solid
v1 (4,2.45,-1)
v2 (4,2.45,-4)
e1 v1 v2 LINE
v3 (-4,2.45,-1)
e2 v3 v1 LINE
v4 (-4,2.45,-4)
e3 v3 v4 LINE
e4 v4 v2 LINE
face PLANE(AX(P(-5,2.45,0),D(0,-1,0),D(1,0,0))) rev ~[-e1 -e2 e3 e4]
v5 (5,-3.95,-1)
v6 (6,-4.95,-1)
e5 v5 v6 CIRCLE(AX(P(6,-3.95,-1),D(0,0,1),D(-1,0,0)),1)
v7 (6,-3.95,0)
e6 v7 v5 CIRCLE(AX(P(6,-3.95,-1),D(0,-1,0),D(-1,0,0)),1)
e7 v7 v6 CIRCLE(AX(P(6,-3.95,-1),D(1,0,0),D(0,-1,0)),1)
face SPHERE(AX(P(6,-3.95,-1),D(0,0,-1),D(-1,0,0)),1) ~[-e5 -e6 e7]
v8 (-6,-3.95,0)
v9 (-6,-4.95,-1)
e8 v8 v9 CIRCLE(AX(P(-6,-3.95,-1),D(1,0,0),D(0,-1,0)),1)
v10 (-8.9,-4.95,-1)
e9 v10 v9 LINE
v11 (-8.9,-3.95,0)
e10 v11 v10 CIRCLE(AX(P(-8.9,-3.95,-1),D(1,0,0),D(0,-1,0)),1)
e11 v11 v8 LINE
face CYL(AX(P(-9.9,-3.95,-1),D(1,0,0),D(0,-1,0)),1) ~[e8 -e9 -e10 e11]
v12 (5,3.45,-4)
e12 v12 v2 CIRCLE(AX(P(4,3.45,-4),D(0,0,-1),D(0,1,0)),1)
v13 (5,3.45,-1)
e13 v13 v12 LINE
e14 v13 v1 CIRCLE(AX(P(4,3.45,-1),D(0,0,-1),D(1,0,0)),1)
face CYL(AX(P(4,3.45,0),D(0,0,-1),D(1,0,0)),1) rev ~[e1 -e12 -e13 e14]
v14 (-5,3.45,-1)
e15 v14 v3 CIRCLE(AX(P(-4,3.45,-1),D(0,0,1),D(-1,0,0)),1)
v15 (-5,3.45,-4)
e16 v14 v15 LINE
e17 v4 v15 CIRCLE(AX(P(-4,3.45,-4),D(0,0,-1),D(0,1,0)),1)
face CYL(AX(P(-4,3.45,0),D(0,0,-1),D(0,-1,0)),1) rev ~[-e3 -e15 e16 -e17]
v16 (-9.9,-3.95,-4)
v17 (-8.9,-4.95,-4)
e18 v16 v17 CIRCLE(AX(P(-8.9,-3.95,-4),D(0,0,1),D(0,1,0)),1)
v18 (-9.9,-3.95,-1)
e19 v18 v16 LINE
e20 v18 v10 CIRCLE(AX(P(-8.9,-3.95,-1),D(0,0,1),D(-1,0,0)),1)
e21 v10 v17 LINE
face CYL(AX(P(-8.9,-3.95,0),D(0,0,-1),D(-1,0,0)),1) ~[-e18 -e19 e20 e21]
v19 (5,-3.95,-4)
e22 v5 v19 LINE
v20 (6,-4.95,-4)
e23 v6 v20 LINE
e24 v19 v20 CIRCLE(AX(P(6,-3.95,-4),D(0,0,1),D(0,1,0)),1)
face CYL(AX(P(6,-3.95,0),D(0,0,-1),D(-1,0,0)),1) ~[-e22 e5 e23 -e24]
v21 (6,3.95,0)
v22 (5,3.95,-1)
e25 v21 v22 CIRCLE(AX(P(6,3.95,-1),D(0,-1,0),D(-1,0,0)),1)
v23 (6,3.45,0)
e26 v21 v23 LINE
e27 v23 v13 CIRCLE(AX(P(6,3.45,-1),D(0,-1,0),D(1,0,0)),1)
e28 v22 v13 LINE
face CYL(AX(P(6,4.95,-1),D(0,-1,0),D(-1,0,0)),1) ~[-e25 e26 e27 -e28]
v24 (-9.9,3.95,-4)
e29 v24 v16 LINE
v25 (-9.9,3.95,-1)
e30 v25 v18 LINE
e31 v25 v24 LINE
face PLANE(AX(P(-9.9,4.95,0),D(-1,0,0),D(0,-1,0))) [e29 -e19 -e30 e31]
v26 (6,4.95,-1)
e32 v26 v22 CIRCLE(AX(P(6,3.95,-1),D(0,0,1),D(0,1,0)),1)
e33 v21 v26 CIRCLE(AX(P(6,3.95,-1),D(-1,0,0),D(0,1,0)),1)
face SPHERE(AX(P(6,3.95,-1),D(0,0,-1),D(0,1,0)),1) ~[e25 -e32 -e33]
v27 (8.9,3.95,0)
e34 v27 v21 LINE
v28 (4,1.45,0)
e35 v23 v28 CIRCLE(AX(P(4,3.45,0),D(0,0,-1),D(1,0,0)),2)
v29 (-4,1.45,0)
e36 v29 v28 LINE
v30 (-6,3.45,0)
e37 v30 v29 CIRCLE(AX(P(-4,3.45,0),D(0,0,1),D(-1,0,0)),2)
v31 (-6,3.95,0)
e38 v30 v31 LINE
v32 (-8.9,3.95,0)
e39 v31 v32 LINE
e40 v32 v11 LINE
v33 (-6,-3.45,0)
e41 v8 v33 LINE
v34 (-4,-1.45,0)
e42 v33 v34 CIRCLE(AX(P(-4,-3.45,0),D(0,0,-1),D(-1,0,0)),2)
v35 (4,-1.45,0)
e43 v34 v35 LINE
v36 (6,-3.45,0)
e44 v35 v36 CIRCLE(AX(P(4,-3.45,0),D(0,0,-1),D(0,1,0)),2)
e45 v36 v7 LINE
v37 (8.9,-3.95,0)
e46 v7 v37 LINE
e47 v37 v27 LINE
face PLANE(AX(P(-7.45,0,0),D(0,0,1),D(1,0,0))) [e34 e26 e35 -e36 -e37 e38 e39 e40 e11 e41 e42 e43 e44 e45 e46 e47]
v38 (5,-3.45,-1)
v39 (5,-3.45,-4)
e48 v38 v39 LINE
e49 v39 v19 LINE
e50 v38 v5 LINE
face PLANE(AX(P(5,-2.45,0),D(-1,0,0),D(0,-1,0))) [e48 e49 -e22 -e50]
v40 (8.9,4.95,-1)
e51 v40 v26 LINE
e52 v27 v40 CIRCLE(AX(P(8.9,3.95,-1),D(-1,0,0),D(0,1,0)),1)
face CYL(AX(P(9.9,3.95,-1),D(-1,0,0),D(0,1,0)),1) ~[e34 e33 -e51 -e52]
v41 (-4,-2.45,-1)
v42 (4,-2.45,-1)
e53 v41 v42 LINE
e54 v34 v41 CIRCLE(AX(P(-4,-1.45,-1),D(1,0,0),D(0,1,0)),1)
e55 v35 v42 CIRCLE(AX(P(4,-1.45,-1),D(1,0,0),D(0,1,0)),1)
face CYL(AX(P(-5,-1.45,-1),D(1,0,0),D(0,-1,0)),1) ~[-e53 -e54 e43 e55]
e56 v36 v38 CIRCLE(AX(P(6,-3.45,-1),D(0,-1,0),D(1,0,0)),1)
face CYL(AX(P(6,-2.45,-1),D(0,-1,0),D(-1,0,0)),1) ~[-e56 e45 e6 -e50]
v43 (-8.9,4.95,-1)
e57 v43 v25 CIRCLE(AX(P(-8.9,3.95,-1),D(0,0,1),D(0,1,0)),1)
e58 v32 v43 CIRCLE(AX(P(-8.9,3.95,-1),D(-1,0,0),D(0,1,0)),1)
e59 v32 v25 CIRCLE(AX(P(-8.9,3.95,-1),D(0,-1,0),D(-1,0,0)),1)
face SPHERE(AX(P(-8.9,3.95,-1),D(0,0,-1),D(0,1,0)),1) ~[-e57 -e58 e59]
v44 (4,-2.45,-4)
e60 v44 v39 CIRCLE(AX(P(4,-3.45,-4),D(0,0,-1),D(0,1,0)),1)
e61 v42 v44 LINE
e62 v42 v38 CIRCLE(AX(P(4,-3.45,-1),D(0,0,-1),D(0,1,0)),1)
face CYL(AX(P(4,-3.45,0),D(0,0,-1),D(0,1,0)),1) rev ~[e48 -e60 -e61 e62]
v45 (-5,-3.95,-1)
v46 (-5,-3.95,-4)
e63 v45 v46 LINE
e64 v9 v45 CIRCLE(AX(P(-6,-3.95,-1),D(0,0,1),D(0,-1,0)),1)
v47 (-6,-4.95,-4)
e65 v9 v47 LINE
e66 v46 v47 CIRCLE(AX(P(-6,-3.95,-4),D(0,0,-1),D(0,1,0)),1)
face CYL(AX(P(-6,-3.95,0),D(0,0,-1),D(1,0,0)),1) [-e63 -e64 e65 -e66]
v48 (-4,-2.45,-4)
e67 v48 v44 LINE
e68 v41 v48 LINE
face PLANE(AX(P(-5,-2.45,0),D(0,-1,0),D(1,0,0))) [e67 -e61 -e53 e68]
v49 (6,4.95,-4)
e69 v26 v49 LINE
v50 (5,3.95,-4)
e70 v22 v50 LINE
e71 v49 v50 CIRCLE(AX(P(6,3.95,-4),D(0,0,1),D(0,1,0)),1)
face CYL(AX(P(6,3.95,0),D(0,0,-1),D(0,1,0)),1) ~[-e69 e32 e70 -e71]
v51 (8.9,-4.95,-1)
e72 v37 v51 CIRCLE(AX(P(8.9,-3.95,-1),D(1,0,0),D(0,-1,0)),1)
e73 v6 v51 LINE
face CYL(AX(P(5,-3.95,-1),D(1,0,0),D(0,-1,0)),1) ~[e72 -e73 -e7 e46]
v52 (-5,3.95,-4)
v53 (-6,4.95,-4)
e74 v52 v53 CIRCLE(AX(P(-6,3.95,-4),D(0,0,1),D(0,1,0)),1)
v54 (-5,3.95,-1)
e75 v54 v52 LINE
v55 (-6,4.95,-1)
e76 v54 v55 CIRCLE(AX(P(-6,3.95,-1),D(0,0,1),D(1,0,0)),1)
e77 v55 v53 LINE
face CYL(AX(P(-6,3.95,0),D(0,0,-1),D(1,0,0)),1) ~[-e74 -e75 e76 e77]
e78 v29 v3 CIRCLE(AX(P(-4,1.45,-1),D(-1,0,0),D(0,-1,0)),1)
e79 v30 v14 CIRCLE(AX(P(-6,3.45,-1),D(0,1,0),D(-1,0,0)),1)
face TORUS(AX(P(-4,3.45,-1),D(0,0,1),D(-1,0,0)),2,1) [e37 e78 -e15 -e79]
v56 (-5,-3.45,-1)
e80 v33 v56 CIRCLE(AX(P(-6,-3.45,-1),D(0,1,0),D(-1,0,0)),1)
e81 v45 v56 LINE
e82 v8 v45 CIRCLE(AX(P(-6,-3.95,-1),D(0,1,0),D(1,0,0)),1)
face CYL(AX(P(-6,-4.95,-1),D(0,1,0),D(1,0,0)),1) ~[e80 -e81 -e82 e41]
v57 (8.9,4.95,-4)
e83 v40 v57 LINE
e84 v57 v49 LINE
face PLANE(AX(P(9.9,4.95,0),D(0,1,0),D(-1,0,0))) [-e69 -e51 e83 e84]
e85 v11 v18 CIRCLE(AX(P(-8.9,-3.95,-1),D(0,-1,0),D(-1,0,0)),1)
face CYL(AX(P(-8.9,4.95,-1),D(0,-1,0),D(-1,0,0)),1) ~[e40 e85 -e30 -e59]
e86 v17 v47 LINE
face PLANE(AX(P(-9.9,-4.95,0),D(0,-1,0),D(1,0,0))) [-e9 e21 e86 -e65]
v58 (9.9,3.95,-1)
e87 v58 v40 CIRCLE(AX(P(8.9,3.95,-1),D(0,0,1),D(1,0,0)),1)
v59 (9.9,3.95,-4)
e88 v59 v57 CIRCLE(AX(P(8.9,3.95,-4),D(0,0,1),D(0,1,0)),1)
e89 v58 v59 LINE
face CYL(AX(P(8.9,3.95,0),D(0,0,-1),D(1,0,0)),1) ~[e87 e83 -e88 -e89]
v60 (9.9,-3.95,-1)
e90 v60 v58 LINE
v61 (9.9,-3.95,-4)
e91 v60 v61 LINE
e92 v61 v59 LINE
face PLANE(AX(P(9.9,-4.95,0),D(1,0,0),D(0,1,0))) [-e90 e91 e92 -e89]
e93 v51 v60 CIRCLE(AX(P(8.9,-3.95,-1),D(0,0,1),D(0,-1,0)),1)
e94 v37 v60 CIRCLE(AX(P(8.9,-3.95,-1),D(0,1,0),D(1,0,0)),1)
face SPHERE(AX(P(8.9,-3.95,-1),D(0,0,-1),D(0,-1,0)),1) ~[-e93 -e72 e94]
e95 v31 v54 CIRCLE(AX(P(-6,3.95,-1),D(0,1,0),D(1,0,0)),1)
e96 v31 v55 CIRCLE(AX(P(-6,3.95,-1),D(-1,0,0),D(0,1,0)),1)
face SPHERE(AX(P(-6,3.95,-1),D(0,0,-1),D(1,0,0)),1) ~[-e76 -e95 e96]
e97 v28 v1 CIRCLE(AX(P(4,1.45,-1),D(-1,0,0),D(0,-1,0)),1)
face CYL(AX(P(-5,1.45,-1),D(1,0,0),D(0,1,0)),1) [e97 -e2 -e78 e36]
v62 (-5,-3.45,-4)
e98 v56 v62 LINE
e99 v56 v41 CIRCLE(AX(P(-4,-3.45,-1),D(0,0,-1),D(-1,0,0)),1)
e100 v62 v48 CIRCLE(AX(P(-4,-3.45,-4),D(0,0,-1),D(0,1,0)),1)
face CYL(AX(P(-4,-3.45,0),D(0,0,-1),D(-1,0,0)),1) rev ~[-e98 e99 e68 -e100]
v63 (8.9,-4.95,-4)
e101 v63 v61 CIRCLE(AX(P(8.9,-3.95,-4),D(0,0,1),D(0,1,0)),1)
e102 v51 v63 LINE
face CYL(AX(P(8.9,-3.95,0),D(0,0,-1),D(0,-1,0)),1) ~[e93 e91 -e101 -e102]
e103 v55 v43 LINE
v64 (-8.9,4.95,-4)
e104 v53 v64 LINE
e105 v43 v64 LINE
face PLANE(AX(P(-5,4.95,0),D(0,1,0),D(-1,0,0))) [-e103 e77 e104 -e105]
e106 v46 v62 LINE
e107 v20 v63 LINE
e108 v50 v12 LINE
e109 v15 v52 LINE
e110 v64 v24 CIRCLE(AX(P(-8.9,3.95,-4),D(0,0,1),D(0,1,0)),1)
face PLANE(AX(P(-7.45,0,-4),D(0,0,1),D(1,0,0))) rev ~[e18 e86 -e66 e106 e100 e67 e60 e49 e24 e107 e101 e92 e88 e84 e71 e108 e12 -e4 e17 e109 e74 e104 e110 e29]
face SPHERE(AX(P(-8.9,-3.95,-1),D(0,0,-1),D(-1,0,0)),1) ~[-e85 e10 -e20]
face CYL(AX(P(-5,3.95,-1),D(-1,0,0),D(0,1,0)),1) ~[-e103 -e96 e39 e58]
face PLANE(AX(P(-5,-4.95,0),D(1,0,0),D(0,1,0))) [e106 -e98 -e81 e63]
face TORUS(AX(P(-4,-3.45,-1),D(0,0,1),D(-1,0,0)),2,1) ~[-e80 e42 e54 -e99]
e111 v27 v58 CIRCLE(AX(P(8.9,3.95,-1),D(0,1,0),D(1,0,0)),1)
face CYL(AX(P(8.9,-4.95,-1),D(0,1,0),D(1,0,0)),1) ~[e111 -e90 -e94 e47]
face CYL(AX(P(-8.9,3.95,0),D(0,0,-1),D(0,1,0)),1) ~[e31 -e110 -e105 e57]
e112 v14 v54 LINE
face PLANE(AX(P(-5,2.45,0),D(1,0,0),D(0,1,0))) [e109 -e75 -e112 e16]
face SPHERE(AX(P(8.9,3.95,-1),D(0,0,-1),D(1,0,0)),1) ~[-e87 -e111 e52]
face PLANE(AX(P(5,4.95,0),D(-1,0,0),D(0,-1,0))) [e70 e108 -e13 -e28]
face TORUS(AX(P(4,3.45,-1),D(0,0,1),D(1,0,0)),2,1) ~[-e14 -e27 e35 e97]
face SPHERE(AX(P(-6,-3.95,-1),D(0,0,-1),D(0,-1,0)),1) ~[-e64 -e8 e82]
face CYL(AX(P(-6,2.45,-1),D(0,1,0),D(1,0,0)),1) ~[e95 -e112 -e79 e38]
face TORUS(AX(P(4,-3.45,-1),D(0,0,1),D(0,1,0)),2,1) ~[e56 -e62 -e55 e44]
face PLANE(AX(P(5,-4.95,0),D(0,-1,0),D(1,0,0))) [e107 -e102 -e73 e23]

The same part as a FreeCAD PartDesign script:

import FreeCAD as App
import Part
import Sketcher
Q = App.Units.Quantity


def edges_at(feature, points):
    """Names of the edges that pass closest to the given points."""
    edges = feature.Shape.Edges
    near = lambda p: min(range(len(edges)), key=lambda i: edges[i].distToShape(Part.Vertex(*p))[0])
    return sorted({f"Edge{near(p) + 1}" for p in points})

doc = App.newDocument("Part")
params = doc.addObject("Spreadsheet::Sheet", "Params")
for row, (alias, value) in enumerate([
    ("sketch1_width", "10 mm"),
    ("sketch1_width2", "4.9 mm"),
    ("sketch1_height", "2.5 mm"),
    ("sketch1_height2", "9.9 mm"),
    ("pad1_length", "4 mm"),
    ("fillet_radius", "1 mm"),
], start=1):
    params.set(f"A{row}", alias)
    params.set(f"B{row}", "=" + value)
    params.setAlias(f"B{row}", alias)

body = doc.addObject("PartDesign::Body", "Body")

sketch1 = body.newObject("Sketcher::SketchObject", "Sketch")
sketch1.AttachmentSupport = (doc.getObject("XY_Plane"), [""])
sketch1.MapMode = "FlatFace"
sketch1.addGeometry(Part.LineSegment(App.Vector(-5, -5, 0), App.Vector(-5, -2.5, 0)), False)
sketch1.addGeometry(Part.LineSegment(App.Vector(-5, -2.5, 0), App.Vector(5, -2.5, 0)), False)
sketch1.addGeometry(Part.LineSegment(App.Vector(5, -2.5, 0), App.Vector(5, -5, 0)), False)
sketch1.addGeometry(Part.LineSegment(App.Vector(5, -5, 0), App.Vector(9.9, -5, 0)), False)
sketch1.addGeometry(Part.LineSegment(App.Vector(9.9, -5, 0), App.Vector(9.9, 5, 0)), False)
sketch1.addGeometry(Part.LineSegment(App.Vector(9.9, 5, 0), App.Vector(5, 5, 0)), False)
sketch1.addGeometry(Part.LineSegment(App.Vector(5, 5, 0), App.Vector(5, 2.5, 0)), False)
sketch1.addGeometry(Part.LineSegment(App.Vector(5, 2.5, 0), App.Vector(-5, 2.5, 0)), False)
sketch1.addGeometry(Part.LineSegment(App.Vector(-5, 2.5, 0), App.Vector(-5, 5, 0)), False)
sketch1.addGeometry(Part.LineSegment(App.Vector(-5, 5, 0), App.Vector(-9.9, 5, 0)), False)
sketch1.addGeometry(Part.LineSegment(App.Vector(-9.9, 5, 0), App.Vector(-9.9, -5, 0)), False)
sketch1.addGeometry(Part.LineSegment(App.Vector(-9.9, -5, 0), App.Vector(-5, -5, 0)), False)
sketch1.addConstraint(Sketcher.Constraint("Coincident", 0, 2, 1, 1))
sketch1.addConstraint(Sketcher.Constraint("Coincident", 1, 2, 2, 1))
sketch1.addConstraint(Sketcher.Constraint("Coincident", 2, 2, 3, 1))
sketch1.addConstraint(Sketcher.Constraint("Coincident", 3, 2, 4, 1))
sketch1.addConstraint(Sketcher.Constraint("Coincident", 4, 2, 5, 1))
sketch1.addConstraint(Sketcher.Constraint("Coincident", 5, 2, 6, 1))
sketch1.addConstraint(Sketcher.Constraint("Coincident", 6, 2, 7, 1))
sketch1.addConstraint(Sketcher.Constraint("Coincident", 7, 2, 8, 1))
sketch1.addConstraint(Sketcher.Constraint("Coincident", 8, 2, 9, 1))
sketch1.addConstraint(Sketcher.Constraint("Coincident", 9, 2, 10, 1))
sketch1.addConstraint(Sketcher.Constraint("Coincident", 10, 2, 11, 1))
sketch1.addConstraint(Sketcher.Constraint("Coincident", 11, 2, 0, 1))
sketch1.addConstraint(Sketcher.Constraint("Vertical", 0))
sketch1.addConstraint(Sketcher.Constraint("Horizontal", 1))
sketch1.addConstraint(Sketcher.Constraint("Vertical", 2))
sketch1.addConstraint(Sketcher.Constraint("Horizontal", 3))
sketch1.addConstraint(Sketcher.Constraint("Vertical", 4))
sketch1.addConstraint(Sketcher.Constraint("Horizontal", 5))
sketch1.addConstraint(Sketcher.Constraint("Vertical", 6))
sketch1.addConstraint(Sketcher.Constraint("Horizontal", 7))
sketch1.addConstraint(Sketcher.Constraint("Vertical", 8))
sketch1.addConstraint(Sketcher.Constraint("Horizontal", 9))
sketch1.addConstraint(Sketcher.Constraint("Vertical", 10))
sketch1.addConstraint(Sketcher.Constraint("Horizontal", 11))
sketch1.addConstraint(Sketcher.Constraint("Symmetric", 0, 2, 6, 2, -1, 1))
sketch1.addConstraint(Sketcher.Constraint("Symmetric", 2, 2, 8, 2, -1, 1))
sketch1.addConstraint(Sketcher.Constraint("Symmetric", 4, 2, 10, 2, -1, 1))
sketch1.addConstraint(Sketcher.Constraint("Symmetric", 5, 2, 8, 2, -2))
sketch1.addConstraint(Sketcher.Constraint("DistanceX", 1, 1, 1, 2, Q("10 mm")))
sketch1.addConstraint(Sketcher.Constraint("DistanceX", 3, 1, 3, 2, Q("4.9 mm")))
sketch1.addConstraint(Sketcher.Constraint("DistanceY", 0, 1, 0, 2, Q("2.5 mm")))
sketch1.addConstraint(Sketcher.Constraint("DistanceY", 4, 1, 4, 2, Q("9.9 mm")))
sketch1.setExpression("Constraints[28]", "Params.sketch1_width")
sketch1.setExpression("Constraints[29]", "Params.sketch1_width2")
sketch1.setExpression("Constraints[30]", "Params.sketch1_height")
sketch1.setExpression("Constraints[31]", "Params.sketch1_height2")
pad1 = body.newObject("PartDesign::Pad", "Pad")
pad1.Profile = sketch1
pad1.setExpression("Length", "Params.pad1_length")
pad1.Reversed = True
doc.recompute()

fillet = body.newObject("PartDesign::Fillet", "Fillet")
fillet.Base = (pad1, edges_at(pad1, [
    (-5, 2.45, -2),
    (-5, 4.95, -2),
    (-9.9, 4.95, -2),
    (-9.9, -4.95, -2),
    (5, -4.95, -2),
    (-5, -4.95, -2),
    (-5, -2.45, -2),
    (5, 4.95, -2),
    (5, -2.45, -2),
    (9.9, 4.95, -2),
    (9.9, -4.95, -2),
    (5, 2.45, -2),
    (-5, 3.7, 0),
    (-7.45, 4.95, 0),
    (-9.9, 0, 0),
    (-7.45, -4.95, 0),
    (-5, -3.7, 0),
    (0, -2.45, 0),
    (5, -3.7, 0),
    (7.45, -4.95, 0),
    (9.9, 0, 0),
    (7.45, 4.95, 0),
    (5, 3.7, 0),
    (0, 2.45, 0),
]))
fillet.setExpression("Radius", "Params.fillet_radius")

doc.recompute()
